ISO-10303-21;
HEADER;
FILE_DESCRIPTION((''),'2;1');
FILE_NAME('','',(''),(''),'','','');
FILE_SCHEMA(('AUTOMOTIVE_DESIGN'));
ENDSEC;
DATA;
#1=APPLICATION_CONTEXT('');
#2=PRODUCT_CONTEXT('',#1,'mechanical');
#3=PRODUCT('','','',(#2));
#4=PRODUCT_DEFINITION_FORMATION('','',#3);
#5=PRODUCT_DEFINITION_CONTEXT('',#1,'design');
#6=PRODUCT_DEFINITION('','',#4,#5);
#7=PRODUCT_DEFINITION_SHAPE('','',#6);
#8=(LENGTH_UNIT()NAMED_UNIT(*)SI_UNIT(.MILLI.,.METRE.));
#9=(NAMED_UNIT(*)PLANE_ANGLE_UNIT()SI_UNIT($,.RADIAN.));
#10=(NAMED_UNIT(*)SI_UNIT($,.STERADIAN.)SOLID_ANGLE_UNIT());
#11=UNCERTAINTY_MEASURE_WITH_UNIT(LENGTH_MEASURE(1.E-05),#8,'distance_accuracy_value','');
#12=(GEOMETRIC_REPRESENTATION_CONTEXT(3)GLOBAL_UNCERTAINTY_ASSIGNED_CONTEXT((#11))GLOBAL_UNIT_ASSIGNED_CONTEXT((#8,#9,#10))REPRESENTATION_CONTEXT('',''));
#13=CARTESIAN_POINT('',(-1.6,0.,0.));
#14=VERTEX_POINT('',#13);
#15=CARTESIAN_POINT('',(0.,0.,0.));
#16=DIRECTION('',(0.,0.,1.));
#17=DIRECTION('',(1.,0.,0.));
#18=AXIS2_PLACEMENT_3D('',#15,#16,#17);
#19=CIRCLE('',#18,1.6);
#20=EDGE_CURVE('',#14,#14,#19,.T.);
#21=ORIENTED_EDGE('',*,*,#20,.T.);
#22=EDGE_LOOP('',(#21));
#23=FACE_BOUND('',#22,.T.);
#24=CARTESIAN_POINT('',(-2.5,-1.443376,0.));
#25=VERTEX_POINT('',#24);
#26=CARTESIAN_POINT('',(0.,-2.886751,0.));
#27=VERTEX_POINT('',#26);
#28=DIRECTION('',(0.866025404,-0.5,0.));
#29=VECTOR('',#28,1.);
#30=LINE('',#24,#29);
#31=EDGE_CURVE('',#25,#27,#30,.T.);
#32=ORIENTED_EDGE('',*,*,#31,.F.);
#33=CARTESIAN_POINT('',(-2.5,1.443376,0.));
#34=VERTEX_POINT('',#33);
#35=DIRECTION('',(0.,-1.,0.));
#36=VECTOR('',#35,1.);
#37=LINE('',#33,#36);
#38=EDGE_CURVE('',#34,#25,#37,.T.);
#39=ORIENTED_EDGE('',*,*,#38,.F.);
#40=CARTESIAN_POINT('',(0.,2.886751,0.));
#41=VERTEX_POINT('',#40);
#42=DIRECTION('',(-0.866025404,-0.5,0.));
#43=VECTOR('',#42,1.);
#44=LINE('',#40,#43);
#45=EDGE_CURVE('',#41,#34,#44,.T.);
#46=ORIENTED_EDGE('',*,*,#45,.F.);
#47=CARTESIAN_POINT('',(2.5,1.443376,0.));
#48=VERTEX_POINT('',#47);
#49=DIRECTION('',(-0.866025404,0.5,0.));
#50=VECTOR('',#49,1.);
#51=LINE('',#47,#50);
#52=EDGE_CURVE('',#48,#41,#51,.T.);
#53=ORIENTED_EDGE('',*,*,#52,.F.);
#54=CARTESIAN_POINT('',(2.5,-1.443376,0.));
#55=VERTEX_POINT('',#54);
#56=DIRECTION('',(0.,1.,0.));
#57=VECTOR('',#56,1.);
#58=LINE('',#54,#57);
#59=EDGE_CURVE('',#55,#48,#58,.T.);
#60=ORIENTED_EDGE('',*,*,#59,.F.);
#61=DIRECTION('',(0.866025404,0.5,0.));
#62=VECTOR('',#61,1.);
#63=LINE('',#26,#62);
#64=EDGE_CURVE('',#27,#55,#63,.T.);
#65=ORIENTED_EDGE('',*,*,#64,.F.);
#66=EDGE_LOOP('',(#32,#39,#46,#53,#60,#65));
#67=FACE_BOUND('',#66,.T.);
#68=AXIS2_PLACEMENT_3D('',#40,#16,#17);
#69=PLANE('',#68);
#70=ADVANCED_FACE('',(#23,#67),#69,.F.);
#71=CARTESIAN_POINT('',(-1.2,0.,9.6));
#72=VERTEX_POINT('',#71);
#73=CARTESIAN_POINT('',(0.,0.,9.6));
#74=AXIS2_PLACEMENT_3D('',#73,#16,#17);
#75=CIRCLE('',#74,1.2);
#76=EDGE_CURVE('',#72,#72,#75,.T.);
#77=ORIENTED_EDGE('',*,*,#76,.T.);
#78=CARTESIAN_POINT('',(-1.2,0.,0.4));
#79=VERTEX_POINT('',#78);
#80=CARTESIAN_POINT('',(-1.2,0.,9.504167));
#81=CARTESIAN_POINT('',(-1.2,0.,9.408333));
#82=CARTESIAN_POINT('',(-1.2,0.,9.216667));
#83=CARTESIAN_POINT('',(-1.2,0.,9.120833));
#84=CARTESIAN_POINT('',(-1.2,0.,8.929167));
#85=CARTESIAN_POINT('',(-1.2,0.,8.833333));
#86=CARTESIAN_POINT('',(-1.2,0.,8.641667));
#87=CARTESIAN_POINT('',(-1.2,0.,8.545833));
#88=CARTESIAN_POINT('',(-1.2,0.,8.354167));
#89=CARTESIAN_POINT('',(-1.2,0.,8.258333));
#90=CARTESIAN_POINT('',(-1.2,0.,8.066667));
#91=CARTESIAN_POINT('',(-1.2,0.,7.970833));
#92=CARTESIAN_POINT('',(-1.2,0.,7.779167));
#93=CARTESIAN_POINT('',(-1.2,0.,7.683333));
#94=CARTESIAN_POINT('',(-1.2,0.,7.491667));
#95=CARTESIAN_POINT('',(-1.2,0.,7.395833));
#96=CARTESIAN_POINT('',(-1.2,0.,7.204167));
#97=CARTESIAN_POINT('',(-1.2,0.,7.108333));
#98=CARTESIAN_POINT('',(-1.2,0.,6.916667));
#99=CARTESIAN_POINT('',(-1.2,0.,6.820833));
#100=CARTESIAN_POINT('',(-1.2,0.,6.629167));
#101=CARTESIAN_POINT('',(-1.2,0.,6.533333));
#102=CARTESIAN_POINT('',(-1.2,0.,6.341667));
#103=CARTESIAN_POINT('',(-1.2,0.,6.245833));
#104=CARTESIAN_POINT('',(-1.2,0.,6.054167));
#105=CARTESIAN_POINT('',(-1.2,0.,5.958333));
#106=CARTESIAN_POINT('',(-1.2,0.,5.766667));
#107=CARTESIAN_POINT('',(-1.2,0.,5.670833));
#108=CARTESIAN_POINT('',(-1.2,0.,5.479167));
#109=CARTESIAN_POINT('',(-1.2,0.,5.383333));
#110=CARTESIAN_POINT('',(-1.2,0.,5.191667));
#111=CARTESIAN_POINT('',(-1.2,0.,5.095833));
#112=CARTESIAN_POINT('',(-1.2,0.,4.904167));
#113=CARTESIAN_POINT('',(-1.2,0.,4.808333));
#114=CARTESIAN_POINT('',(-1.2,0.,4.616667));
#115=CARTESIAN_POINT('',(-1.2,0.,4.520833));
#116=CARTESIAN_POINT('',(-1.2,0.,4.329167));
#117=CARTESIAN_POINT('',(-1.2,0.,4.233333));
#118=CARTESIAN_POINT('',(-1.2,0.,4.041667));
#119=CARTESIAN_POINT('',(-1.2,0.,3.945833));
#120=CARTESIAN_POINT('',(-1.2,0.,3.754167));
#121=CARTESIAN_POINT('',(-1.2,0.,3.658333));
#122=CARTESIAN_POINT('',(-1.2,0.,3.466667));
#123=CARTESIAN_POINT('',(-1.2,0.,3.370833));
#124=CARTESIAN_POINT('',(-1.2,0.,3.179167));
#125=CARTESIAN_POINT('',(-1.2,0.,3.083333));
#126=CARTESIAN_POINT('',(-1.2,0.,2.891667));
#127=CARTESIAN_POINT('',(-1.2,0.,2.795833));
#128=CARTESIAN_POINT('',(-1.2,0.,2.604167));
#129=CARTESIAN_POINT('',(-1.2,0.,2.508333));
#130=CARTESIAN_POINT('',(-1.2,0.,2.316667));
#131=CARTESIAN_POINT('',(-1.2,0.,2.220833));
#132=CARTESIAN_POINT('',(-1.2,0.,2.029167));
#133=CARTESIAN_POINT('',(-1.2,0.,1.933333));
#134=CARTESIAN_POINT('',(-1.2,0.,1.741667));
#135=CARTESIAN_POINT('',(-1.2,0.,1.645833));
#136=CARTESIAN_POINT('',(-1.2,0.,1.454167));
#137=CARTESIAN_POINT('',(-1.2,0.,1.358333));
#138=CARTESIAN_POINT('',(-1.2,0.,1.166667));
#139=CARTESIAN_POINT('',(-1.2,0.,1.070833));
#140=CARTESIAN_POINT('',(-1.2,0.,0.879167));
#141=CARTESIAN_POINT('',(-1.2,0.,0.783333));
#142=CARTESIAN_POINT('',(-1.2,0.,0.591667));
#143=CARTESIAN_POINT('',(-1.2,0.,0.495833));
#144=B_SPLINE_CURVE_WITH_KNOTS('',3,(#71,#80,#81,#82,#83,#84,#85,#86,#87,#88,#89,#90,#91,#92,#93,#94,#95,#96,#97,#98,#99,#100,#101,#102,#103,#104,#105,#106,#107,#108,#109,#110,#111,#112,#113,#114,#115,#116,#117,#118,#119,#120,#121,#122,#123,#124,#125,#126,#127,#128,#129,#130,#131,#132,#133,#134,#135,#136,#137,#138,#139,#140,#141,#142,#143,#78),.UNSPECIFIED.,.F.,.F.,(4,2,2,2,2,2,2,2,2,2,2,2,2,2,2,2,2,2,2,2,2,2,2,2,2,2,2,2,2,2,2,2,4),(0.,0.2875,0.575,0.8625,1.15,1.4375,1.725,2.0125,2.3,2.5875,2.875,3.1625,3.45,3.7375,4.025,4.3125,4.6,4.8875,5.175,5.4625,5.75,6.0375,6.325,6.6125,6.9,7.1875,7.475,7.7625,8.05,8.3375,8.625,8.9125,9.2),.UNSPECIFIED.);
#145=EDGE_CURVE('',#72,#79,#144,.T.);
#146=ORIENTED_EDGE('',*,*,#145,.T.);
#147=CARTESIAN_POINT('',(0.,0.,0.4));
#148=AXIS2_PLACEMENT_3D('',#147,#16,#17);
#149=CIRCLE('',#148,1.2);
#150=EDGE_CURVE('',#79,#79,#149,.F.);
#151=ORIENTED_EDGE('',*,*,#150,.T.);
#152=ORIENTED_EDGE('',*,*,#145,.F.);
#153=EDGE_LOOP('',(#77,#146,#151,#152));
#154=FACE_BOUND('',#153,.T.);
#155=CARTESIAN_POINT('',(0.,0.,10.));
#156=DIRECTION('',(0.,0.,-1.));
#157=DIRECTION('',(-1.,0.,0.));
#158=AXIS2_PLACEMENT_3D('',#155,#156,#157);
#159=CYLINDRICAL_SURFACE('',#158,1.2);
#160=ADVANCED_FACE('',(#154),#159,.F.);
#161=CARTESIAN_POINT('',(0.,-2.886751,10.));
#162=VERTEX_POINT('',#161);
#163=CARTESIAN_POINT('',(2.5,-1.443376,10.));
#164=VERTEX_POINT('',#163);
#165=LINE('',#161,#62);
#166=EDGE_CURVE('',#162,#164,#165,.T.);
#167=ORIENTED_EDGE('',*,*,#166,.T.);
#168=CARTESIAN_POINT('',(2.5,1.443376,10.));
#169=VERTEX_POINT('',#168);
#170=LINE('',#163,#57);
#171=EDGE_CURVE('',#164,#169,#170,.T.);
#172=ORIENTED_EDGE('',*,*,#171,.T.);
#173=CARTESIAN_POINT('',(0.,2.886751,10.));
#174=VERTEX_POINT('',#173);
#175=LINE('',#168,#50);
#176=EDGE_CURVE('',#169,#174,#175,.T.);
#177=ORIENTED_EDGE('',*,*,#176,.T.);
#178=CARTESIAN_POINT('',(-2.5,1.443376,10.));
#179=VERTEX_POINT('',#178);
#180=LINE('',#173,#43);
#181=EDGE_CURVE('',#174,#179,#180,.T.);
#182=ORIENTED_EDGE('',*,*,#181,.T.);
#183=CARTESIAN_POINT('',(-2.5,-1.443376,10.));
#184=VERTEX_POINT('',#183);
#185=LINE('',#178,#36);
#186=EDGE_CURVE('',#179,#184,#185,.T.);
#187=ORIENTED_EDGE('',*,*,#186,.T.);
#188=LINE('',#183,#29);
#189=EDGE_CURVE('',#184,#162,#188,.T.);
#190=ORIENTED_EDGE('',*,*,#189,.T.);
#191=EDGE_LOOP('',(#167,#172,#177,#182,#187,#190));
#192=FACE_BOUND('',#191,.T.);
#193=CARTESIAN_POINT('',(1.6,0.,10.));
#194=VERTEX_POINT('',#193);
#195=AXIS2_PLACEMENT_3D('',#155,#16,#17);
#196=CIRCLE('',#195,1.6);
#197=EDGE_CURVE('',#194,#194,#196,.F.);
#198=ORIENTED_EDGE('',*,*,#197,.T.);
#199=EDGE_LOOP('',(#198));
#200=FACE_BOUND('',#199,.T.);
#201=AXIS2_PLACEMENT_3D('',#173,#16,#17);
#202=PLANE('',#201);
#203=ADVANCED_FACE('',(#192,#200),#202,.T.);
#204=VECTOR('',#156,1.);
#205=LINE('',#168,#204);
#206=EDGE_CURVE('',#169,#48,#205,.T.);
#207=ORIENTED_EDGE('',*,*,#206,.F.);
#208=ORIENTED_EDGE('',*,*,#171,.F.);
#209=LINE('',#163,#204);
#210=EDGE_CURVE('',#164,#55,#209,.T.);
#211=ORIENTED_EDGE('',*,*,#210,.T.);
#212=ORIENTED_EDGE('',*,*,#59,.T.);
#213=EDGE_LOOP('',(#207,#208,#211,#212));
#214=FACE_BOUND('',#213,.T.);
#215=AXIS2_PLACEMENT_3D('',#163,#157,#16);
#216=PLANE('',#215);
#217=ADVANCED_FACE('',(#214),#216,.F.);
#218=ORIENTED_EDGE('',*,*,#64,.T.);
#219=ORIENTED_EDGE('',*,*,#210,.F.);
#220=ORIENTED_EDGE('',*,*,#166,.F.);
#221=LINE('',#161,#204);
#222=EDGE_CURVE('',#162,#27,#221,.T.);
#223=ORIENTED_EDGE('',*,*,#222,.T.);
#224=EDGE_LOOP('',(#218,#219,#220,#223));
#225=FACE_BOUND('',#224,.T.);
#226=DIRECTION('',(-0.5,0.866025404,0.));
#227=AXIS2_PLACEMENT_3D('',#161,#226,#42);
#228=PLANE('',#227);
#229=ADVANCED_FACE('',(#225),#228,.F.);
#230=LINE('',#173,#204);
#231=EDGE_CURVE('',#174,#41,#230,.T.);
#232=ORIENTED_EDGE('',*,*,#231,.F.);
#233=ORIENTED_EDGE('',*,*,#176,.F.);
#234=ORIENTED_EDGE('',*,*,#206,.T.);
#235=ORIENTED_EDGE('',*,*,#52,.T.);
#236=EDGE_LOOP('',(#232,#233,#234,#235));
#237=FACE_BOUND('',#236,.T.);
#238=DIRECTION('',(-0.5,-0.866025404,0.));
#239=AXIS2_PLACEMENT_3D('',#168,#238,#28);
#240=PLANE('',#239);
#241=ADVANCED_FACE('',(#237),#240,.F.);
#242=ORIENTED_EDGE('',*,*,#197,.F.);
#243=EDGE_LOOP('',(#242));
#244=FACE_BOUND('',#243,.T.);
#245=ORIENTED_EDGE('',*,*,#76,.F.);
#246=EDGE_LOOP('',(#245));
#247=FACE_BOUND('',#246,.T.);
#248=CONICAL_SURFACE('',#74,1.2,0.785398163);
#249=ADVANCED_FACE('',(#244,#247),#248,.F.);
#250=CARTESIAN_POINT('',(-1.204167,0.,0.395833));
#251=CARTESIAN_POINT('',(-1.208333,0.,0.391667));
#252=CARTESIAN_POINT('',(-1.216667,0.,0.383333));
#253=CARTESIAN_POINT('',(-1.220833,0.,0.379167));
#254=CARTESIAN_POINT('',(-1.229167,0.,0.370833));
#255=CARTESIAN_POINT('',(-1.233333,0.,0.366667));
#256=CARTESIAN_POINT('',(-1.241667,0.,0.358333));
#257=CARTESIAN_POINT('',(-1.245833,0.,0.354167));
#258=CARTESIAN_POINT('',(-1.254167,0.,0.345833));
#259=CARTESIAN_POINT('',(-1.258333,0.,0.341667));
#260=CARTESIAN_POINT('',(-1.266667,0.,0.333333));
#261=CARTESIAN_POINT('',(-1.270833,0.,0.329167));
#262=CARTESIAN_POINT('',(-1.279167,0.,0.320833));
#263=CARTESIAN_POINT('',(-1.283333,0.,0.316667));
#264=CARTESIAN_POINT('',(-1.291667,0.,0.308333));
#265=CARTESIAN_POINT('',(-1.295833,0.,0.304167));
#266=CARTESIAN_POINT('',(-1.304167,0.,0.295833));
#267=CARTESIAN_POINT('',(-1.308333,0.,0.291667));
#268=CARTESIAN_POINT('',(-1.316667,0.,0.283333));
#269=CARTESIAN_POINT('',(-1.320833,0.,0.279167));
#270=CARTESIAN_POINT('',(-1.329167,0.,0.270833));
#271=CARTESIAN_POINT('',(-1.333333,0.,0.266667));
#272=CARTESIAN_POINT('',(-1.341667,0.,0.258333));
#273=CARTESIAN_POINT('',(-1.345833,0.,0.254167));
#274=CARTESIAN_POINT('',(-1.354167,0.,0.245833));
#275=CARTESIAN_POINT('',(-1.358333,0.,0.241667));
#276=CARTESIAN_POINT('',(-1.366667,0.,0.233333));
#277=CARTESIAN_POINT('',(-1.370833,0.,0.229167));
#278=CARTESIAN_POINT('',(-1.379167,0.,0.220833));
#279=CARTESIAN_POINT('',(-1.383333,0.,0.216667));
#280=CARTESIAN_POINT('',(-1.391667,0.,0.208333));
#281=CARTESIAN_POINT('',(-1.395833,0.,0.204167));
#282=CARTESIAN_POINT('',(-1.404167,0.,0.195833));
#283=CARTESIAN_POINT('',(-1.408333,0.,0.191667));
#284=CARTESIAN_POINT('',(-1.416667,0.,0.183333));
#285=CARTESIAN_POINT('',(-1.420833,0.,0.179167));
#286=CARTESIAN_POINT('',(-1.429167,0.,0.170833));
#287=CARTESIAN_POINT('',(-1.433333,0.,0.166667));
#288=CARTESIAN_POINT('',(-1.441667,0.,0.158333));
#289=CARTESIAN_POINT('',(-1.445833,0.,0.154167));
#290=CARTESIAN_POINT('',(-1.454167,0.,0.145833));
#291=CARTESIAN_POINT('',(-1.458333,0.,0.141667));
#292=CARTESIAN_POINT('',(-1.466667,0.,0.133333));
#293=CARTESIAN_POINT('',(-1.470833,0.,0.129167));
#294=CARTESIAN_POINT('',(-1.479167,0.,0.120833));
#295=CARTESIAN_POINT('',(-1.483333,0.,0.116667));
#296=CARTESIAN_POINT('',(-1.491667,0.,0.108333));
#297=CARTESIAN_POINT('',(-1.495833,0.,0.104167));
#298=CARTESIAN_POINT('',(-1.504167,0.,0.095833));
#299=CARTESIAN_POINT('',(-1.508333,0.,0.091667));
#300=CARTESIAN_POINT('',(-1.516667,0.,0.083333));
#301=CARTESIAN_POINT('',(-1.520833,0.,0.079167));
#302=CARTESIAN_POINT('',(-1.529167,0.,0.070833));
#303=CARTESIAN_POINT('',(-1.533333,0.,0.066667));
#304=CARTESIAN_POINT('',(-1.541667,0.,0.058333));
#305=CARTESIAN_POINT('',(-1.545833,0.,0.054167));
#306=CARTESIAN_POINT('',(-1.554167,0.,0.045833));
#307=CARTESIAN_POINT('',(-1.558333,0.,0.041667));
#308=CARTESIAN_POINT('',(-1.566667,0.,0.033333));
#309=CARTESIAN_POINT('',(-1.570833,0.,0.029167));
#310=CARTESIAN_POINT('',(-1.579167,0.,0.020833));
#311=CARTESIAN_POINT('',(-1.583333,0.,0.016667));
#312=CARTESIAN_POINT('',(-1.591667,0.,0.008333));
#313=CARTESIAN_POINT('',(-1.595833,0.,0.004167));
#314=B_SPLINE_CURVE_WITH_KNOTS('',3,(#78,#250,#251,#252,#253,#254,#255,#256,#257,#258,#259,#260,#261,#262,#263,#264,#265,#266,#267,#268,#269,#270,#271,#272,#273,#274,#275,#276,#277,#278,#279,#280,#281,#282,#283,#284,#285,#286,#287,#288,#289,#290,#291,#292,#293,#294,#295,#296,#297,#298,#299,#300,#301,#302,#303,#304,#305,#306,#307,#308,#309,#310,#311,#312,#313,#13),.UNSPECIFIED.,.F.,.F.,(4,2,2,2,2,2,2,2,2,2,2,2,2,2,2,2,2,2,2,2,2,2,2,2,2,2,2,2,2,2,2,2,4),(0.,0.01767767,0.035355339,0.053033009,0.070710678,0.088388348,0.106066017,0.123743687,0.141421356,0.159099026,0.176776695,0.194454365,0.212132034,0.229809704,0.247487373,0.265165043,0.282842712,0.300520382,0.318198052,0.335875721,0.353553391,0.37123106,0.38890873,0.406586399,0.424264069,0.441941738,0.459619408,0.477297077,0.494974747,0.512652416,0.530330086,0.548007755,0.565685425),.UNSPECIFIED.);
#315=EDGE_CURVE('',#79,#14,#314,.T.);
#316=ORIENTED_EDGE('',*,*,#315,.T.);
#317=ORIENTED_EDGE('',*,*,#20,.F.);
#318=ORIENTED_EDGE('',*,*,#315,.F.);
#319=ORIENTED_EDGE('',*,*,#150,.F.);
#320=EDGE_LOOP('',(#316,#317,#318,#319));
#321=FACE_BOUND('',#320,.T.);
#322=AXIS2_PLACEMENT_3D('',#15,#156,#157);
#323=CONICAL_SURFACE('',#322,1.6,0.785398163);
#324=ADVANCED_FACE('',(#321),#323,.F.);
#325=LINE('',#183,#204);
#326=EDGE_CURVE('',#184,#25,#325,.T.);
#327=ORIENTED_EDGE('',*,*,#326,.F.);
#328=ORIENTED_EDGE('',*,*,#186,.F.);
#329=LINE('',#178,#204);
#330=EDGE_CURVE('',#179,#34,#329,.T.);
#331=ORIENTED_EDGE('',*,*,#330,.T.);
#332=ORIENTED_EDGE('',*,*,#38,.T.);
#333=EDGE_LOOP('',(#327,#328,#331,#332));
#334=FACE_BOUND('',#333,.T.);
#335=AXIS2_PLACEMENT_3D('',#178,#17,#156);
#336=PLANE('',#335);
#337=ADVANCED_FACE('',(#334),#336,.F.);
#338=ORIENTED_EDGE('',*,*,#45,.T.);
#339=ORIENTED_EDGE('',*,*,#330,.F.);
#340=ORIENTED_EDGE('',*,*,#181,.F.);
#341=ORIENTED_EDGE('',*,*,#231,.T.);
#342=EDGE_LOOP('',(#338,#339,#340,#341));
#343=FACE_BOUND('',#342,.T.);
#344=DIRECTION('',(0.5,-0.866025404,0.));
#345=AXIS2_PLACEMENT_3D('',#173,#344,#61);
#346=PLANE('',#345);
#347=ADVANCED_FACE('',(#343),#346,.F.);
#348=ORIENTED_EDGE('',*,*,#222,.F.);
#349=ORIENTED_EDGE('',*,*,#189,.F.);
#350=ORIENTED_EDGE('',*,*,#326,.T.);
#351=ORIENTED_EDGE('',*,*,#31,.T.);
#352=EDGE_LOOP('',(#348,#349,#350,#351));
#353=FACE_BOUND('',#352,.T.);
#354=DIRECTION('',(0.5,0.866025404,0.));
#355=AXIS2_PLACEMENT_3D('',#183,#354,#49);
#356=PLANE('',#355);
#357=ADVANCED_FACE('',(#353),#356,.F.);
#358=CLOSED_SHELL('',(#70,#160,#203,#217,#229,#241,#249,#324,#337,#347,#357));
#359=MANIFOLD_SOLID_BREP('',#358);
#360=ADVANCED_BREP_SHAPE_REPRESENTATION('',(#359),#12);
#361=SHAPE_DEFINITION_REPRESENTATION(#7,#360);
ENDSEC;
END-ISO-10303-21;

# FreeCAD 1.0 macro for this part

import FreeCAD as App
import Part
import Sketcher
from FreeCAD import Vector
Q = App.Units.Quantity


def edges_at(feature, points):
    """Names of the edges that pass closest to the given points."""
    edges = feature.Shape.Edges
    near = lambda p: min(range(len(edges)), key=lambda i: edges[i].distToShape(Part.Vertex(*p))[0])
    return sorted({f"Edge{near(p) + 1}" for p in points})


def add_polygon(sketch, points):
    """Adds a closed chain of lines whose ends are joined by coincident constraints."""
    first, n = sketch.GeometryCount, len(points)
    for a, b in zip(points, points[1:] + points[:1]):
        sketch.addGeometry(Part.LineSegment(App.Vector(*a, 0), App.Vector(*b, 0)), False)
    for i in range(n):
        sketch.addConstraint(Sketcher.Constraint("Coincident", first + i, 2, first + (i + 1) % n, 1))

doc = App.newDocument("Part")
body = doc.addObject("PartDesign::Body", "Body")

sketch1 = doc.addObject("Sketcher::SketchObject", "Sketch")
body.addObject(sketch1)
sketch1.AttachmentSupport = (doc.XY_Plane, [""])
sketch1.MapMode = "FlatFace"
add_polygon(sketch1, [(0, 2.9), (-2.5, 1.4), (-2.5, -1.4), (0, -2.9), (2.5, -1.4), (2.5, 1.4)])
sketch1.addGeometry(Part.Circle(Vector(0, 0, 0), Vector(0, 0, 1), 1.2), False)
sketch1.addConstraint([
    Sketcher.Constraint("Vertical", 1),
    Sketcher.Constraint("Vertical", 4),
    Sketcher.Constraint("Coincident", 6, 3, -1, 1),
    Sketcher.Constraint("Symmetric", 0, 2, 3, 2, -1, 1),
    Sketcher.Constraint("Symmetric", 2, 2, 5, 2, -1, 1),
    Sketcher.Constraint("PointOnObject", 2, 2, -2),
    Sketcher.Constraint("Parallel", 2, 5),
    Sketcher.Constraint("Horizontal", 1, 2, 3, 2),
    Sketcher.Constraint("Diameter", 6, Q("2.4 mm")),
    Sketcher.Constraint("Angle", 0, Q("-150 deg")),
    Sketcher.Constraint("DistanceX", 1, 2, 3, 2, Q("5 mm")),
    Sketcher.Constraint("DistanceY", 1, 2, 1, 1, Q("2.886751 mm")),
])
pad1 = doc.addObject("PartDesign::Pad", "Pad")
body.addObject(pad1)
pad1.Profile = sketch1
pad1.Length = 10
doc.recompute()

chamfer = doc.addObject("PartDesign::Chamfer", "Chamfer")
body.addObject(chamfer)
chamfer.Base = (pad1, edges_at(pad1, [(-1.2, 0, 0), (-1.2, 0, 10)]))
chamfer.Size = 0.4

doc.recompute()
